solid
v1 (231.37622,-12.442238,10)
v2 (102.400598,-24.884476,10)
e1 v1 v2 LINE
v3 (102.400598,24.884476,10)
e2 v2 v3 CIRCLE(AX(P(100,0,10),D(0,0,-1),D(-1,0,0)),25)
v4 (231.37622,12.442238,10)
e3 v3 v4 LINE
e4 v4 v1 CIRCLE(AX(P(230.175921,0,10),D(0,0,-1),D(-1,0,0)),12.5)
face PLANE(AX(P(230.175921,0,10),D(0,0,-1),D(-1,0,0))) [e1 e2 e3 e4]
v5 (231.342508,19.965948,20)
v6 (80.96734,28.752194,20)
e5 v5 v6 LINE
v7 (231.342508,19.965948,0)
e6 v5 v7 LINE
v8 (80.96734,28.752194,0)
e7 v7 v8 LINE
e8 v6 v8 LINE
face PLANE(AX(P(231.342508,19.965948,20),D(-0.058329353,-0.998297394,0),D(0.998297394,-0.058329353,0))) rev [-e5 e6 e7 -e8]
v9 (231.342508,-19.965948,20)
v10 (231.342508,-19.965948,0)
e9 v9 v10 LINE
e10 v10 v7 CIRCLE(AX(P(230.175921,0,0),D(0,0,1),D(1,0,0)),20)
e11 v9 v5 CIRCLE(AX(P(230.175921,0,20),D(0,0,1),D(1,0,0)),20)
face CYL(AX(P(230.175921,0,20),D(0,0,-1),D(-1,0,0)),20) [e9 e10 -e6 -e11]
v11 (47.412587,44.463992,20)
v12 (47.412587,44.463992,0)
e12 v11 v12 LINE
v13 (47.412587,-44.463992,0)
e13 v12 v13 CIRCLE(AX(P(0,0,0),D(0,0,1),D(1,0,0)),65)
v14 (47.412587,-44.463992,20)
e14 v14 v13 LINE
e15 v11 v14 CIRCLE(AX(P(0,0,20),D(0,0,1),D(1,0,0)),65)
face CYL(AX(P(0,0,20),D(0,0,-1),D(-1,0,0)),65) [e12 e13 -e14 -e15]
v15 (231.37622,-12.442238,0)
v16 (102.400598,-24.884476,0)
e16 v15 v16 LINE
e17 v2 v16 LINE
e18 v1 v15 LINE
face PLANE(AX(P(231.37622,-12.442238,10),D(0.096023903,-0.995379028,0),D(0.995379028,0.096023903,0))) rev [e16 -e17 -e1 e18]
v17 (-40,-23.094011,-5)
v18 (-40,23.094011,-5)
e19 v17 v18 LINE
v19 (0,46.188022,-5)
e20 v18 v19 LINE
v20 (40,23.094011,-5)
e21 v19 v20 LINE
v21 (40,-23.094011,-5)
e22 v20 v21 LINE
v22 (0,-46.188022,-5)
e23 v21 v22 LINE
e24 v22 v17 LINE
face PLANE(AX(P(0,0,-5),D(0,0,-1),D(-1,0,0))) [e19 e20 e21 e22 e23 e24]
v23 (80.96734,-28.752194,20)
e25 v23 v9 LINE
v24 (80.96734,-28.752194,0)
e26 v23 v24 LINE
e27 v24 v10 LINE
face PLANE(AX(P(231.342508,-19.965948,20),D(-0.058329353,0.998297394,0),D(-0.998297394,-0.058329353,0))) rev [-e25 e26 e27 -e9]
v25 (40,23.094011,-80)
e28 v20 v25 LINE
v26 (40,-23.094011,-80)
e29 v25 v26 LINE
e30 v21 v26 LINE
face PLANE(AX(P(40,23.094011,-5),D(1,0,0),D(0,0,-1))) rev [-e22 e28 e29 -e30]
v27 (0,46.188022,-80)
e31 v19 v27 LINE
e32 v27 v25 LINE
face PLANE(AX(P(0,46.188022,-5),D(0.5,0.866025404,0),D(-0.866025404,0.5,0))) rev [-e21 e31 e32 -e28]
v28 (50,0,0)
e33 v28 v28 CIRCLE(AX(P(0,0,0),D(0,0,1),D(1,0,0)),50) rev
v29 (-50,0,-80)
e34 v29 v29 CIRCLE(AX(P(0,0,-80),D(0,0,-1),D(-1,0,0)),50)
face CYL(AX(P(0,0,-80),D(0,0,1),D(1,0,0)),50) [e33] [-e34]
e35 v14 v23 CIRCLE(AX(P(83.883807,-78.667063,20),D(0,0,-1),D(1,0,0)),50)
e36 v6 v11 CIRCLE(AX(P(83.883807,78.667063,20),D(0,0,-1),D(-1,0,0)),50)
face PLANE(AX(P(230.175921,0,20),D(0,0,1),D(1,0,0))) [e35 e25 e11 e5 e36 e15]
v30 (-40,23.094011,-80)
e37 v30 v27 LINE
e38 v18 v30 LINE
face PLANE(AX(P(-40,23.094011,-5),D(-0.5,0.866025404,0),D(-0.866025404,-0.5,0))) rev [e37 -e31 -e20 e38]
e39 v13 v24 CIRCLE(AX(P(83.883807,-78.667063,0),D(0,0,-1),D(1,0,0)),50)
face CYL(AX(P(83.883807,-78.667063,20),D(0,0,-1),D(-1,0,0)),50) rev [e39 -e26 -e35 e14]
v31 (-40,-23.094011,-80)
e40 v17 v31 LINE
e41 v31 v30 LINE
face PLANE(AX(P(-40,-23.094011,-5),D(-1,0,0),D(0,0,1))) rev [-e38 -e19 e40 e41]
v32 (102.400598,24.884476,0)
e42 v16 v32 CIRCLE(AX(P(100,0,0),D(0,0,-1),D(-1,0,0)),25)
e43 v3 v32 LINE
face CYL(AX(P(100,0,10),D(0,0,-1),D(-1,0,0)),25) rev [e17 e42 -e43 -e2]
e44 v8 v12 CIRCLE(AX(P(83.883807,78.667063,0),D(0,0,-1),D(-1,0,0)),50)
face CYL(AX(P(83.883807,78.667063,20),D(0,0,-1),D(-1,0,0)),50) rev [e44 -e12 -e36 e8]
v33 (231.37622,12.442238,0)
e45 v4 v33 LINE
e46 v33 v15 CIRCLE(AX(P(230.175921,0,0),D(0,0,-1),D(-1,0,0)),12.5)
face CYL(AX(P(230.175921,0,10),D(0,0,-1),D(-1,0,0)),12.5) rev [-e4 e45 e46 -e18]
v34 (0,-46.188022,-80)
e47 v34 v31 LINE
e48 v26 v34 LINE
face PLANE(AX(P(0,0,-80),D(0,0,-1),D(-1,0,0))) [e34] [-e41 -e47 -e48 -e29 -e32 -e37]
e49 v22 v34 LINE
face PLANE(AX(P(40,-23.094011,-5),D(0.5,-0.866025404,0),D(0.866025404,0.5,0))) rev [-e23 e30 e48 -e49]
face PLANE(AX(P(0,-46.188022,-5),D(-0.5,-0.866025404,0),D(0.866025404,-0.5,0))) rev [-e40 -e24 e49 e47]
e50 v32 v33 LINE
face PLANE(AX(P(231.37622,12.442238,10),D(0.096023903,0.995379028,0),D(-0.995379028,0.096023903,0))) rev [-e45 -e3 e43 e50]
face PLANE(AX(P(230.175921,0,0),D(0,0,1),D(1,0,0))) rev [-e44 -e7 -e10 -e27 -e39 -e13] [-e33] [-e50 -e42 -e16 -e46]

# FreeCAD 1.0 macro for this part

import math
import FreeCAD as App
import Part
import Sketcher
Q = App.Units.Quantity

doc = App.newDocument("Part")
body = doc.addObject("PartDesign::Body", "Body")

# Sketch on XY plane
sketch1 = doc.addObject("Sketcher::SketchObject", "Sketch")
body.addObject(sketch1)
sketch1.AttachmentSupport = (doc.XY_Plane, [""])
sketch1.MapMode = "FlatFace"
sketch1.addGeometry(Part.LineSegment(App.Vector(231.342508, 19.965948, 0), App.Vector(80.96734, 28.752194, 0)), False)
sketch1.addGeometry(Part.ArcOfCircle(Part.Circle(App.Vector(83.883807, 78.667063, 0), App.Vector(0, 0, 1), 50), math.radians(-136.838162), math.radians(-93.343924)), False)
sketch1.addGeometry(Part.ArcOfCircle(Part.Circle(App.Vector(0, 0, 0), App.Vector(0, 0, 1), 65), math.radians(43.161838), math.radians(316.838162)), False)
sketch1.addGeometry(Part.ArcOfCircle(Part.Circle(App.Vector(83.883807, -78.667063, 0), App.Vector(0, 0, 1), 50), math.radians(93.343924), math.radians(136.838162)), False)
sketch1.addGeometry(Part.LineSegment(App.Vector(80.96734, -28.752194, 0), App.Vector(231.342508, -19.965948, 0)), False)
sketch1.addGeometry(Part.ArcOfCircle(Part.Circle(App.Vector(230.175921, 0, 0), App.Vector(0, 0, 1), 20), math.radians(-86.656076), math.radians(86.656076)), False)
sketch1.addConstraint(Sketcher.Constraint("Tangent", 0, 2, 1, 2))
sketch1.addConstraint(Sketcher.Constraint("Tangent", 1, 1, 2, 1))
sketch1.addConstraint(Sketcher.Constraint("Tangent", 2, 2, 3, 2))
sketch1.addConstraint(Sketcher.Constraint("Tangent", 3, 1, 4, 1))
sketch1.addConstraint(Sketcher.Constraint("Tangent", 4, 2, 5, 1))
sketch1.addConstraint(Sketcher.Constraint("Tangent", 5, 2, 0, 1))
sketch1.addConstraint(Sketcher.Constraint("Coincident", 2, 3, -1, 1))
sketch1.addConstraint(Sketcher.Constraint("Equal", 1, 3))
sketch1.addConstraint(Sketcher.Constraint("Symmetric", 0, 2, 3, 1, -1))
sketch1.addConstraint(Sketcher.Constraint("Radius", 1, 50.0))
sketch1.addConstraint(Sketcher.Constraint("Radius", 2, 65.0))
sketch1.addConstraint(Sketcher.Constraint("Radius", 5, 20.0))
sketch1.addConstraint(Sketcher.Constraint("DistanceY", 0, 2, 1, 1, 15.711799))
sketch1.addConstraint(Sketcher.Constraint("DistanceX", 3, 3, 4, 2, 147.458701))
pad1 = doc.addObject("PartDesign::Pad", "Pad")
body.addObject(pad1)
pad1.Profile = sketch1
pad1.Length = 20

# Sketch on XY plane
sketch2 = doc.addObject("Sketcher::SketchObject", "Sketch001")
body.addObject(sketch2)
sketch2.AttachmentSupport = (doc.XY_Plane, [""])
sketch2.MapMode = "FlatFace"
sketch2.addGeometry(Part.LineSegment(App.Vector(231.37622, -12.442238, 0), App.Vector(102.400598, -24.884476, 0)), False)
sketch2.addGeometry(Part.ArcOfCircle(Part.Circle(App.Vector(100, 0, 0), App.Vector(0, 0, 1), 25), math.radians(84.489745), math.radians(275.510255)), False)
sketch2.addGeometry(Part.LineSegment(App.Vector(102.400598, 24.884476, 0), App.Vector(231.37622, 12.442238, 0)), False)
sketch2.addGeometry(Part.ArcOfCircle(Part.Circle(App.Vector(230.175921, 0, 0), App.Vector(0, 0, 1), 12.5), math.radians(-84.489745), math.radians(84.489745)), False)
sketch2.addConstraint(Sketcher.Constraint("Coincident", 0, 2, 1, 2))
sketch2.addConstraint(Sketcher.Constraint("Coincident", 1, 1, 2, 1))
sketch2.addConstraint(Sketcher.Constraint("Coincident", 2, 2, 3, 2))
sketch2.addConstraint(Sketcher.Constraint("Coincident", 3, 1, 0, 1))
sketch2.addConstraint(Sketcher.Constraint("PointOnObject", 1, 3, -1))
sketch2.addConstraint(Sketcher.Constraint("PointOnObject", 3, 3, -1))
sketch2.addConstraint(Sketcher.Constraint("Radius", 1, 25.0))
sketch2.addConstraint(Sketcher.Constraint("Radius", 3, 12.5))
sketch2.addConstraint(Sketcher.Constraint("DistanceX", -1, 1, 1, 3, 100.0))
sketch2.addConstraint(Sketcher.Constraint("DistanceX", 3, 3, 2, 2, 1.200299))
sketch2.addConstraint(Sketcher.Constraint("DistanceX", 3, 3, 3, 1, 1.200299))
sketch2.addConstraint(Sketcher.Constraint("Distance", 0, 129.574382))
sketch2.addConstraint(Sketcher.Constraint("Distance", 2, 129.574382))
sketch2.addConstraint(Sketcher.Constraint("DistanceX", -1, 1, 3, 3, 230.175921))
pocket1 = doc.addObject("PartDesign::Pocket", "Pocket")
body.addObject(pocket1)
pocket1.Profile = sketch2
pocket1.Length = 10
pocket1.Reversed = True

# Sketch on XY plane
sketch3 = doc.addObject("Sketcher::SketchObject", "Sketch002")
body.addObject(sketch3)
sketch3.AttachmentSupport = (doc.XY_Plane, [""])
sketch3.MapMode = "FlatFace"
sketch3.addGeometry(Part.Circle(App.Vector(0, 0, 0), App.Vector(0, 0, 1), 50), False)
sketch3.addConstraint(Sketcher.Constraint("Coincident", 0, 3, -1, 1))
sketch3.addConstraint(Sketcher.Constraint("Diameter", 0, 100.0))
pad2 = doc.addObject("PartDesign::Pad", "Pad001")
body.addObject(pad2)
pad2.Profile = sketch3
pad2.Length = 80
pad2.Reversed = True

# Sketch on XY plane
sketch4 = doc.addObject("Sketcher::SketchObject", "Sketch003")
body.addObject(sketch4)
sketch4.AttachmentSupport = (doc.XY_Plane, [""])
sketch4.MapMode = "FlatFace"
sketch4.AttachmentOffset = App.Placement(App.Vector(0, 0, -80), App.Rotation())
sketch4.addGeometry(Part.LineSegment(App.Vector(0, 46.188022, 0), App.Vector(40, 23.094011, 0)), False)
sketch4.addGeometry(Part.LineSegment(App.Vector(40, 23.094011, 0), App.Vector(40, -23.094011, 0)), False)
sketch4.addGeometry(Part.LineSegment(App.Vector(40, -23.094011, 0), App.Vector(0, -46.188022, 0)), False)
sketch4.addGeometry(Part.LineSegment(App.Vector(0, -46.188022, 0), App.Vector(-40, -23.094011, 0)), False)
sketch4.addGeometry(Part.LineSegment(App.Vector(-40, -23.094011, 0), App.Vector(-40, 23.094011, 0)), False)
sketch4.addGeometry(Part.LineSegment(App.Vector(-40, 23.094011, 0), App.Vector(0, 46.188022, 0)), False)
sketch4.addConstraint(Sketcher.Constraint("Coincident", 0, 2, 1, 1))
sketch4.addConstraint(Sketcher.Constraint("Coincident", 1, 2, 2, 1))
sketch4.addConstraint(Sketcher.Constraint("Coincident", 2, 2, 3, 1))
sketch4.addConstraint(Sketcher.Constraint("Coincident", 3, 2, 4, 1))
sketch4.addConstraint(Sketcher.Constraint("Coincident", 4, 2, 5, 1))
sketch4.addConstraint(Sketcher.Constraint("Coincident", 5, 2, 0, 1))
sketch4.addConstraint(Sketcher.Constraint("Vertical", 1))
sketch4.addConstraint(Sketcher.Constraint("Vertical", 4))
sketch4.addConstraint(Sketcher.Constraint("Symmetric", 0, 2, 3, 2, -1, 1))
sketch4.addConstraint(Sketcher.Constraint("Symmetric", 2, 2, 5, 2, -1, 1))
sketch4.addConstraint(Sketcher.Constraint("PointOnObject", 2, 2, -2))
sketch4.addConstraint(Sketcher.Constraint("Parallel", 2, 5))
sketch4.addConstraint(Sketcher.Constraint("Horizontal", 1, 2, 3, 2))
sketch4.addConstraint(Sketcher.Constraint("Angle", 0, Q("-30 deg")))
sketch4.addConstraint(Sketcher.Constraint("DistanceX", -1, 1, 0, 2, 40.0))
sketch4.addConstraint(Sketcher.Constraint("DistanceY", 1, 2, 1, 1, 46.188022))
pocket2 = doc.addObject("PartDesign::Pocket", "Pocket001")
body.addObject(pocket2)
pocket2.Profile = sketch4
pocket2.Length = 75
pocket2.Reversed = True

doc.recompute()
